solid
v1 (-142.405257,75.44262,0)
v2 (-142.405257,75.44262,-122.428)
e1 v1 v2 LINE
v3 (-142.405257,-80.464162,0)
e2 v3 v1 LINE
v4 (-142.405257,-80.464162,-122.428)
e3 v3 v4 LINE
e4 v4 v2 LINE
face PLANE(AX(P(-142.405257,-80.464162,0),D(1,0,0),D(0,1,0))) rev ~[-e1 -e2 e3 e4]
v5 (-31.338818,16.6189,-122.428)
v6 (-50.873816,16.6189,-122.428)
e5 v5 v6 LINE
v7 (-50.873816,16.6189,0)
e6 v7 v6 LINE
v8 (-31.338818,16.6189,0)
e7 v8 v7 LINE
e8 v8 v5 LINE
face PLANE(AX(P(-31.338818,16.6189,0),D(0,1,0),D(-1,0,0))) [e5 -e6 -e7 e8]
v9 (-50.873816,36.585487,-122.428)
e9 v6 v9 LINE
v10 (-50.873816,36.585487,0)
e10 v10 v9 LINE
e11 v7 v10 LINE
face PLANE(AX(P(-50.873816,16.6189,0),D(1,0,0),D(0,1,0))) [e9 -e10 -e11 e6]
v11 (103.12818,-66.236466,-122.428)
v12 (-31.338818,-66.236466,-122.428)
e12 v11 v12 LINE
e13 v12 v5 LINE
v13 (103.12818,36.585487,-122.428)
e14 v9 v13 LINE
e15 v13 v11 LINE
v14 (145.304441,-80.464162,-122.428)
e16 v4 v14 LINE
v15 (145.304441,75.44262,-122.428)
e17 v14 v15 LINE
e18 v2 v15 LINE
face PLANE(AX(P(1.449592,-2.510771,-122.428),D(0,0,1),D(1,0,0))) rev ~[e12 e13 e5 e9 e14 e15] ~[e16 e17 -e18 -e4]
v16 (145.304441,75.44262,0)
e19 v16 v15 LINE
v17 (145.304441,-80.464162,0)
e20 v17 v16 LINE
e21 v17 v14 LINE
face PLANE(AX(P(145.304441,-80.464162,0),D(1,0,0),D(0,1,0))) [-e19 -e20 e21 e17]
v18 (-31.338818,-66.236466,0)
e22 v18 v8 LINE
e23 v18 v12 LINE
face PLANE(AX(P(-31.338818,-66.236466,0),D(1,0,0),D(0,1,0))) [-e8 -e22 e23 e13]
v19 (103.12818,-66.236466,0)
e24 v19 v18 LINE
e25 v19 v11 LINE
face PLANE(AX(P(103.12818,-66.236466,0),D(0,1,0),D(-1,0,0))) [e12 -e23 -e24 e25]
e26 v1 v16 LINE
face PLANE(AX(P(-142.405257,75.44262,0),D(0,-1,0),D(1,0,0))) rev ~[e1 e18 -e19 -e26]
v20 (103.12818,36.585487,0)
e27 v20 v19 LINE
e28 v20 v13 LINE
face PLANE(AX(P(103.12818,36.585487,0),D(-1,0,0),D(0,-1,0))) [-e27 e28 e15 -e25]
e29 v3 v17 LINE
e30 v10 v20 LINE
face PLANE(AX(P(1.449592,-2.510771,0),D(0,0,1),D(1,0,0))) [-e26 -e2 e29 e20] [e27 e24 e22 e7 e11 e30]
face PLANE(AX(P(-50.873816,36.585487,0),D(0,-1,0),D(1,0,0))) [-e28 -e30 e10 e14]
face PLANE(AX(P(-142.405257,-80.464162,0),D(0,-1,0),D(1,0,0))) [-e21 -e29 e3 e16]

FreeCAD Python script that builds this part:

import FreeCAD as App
import Part
import Sketcher
from FreeCAD import Vector
Q = App.Units.Quantity


def add_polygon(sketch, points):
    """Adds a closed chain of lines whose ends are joined by coincident constraints."""
    first, n = sketch.GeometryCount, len(points)
    for a, b in zip(points, points[1:] + points[:1]):
        sketch.addGeometry(Part.LineSegment(App.Vector(*a, 0), App.Vector(*b, 0)), False)
    for i in range(n):
        sketch.addConstraint(Sketcher.Constraint("Coincident", first + i, 2, first + (i + 1) % n, 1))

doc = App.newDocument("Part")
body = doc.addObject("PartDesign::Body", "Body")

# Sketch on XY plane
sketch1 = body.newObject("Sketcher::SketchObject", "Sketch")
sketch1.AttachmentSupport = (doc.getObject("XY_Plane"), [""])
sketch1.MapMode = "FlatFace"
add_polygon(sketch1, [(-142, 75), (-142, -80), (145, -80), (145, 75)])  # lines 0-3
add_polygon(sketch1, [(-31, -66), (-31, 17), (-51, 17), (-51, 37), (103, 37), (103, -66)])  # lines 4-9
sketch1.addConstraint(Sketcher.Constraint("Vertical", 0))
sketch1.addConstraint(Sketcher.Constraint("Horizontal", 1))
sketch1.addConstraint(Sketcher.Constraint("Vertical", 2))
sketch1.addConstraint(Sketcher.Constraint("Horizontal", 3))
sketch1.addConstraint(Sketcher.Constraint("Vertical", 4))
sketch1.addConstraint(Sketcher.Constraint("Horizontal", 5))
sketch1.addConstraint(Sketcher.Constraint("Vertical", 6))
sketch1.addConstraint(Sketcher.Constraint("Horizontal", 7))
sketch1.addConstraint(Sketcher.Constraint("Vertical", 8))
sketch1.addConstraint(Sketcher.Constraint("Horizontal", 9))
sketch1.addConstraint(Sketcher.Constraint("DistanceX", 1, 1, 1, 2, Q("287.709698 mm")))
sketch1.addConstraint(Sketcher.Constraint("DistanceX", 3, 2, 5, 2, Q("3.6036 in")))
sketch1.addConstraint(Sketcher.Constraint("DistanceY", -1, 1, 4, 2, Q("16.6189 mm")))
sketch1.addConstraint(Sketcher.Constraint("DistanceX", 5, 2, 5, 1, Q("19.534998 mm")))
sketch1.addConstraint(Sketcher.Constraint("DistanceX", 7, 1, 7, 2, Q("154.001996 mm")))
sketch1.addConstraint(Sketcher.Constraint("DistanceY", 0, 2, 0, 1, Q("155.906782 mm")))
sketch1.addConstraint(Sketcher.Constraint("DistanceY", 4, 1, 4, 2, Q("82.855366 mm")))
sketch1.addConstraint(Sketcher.Constraint("DistanceY", 6, 1, 6, 2, Q("19.966587 mm")))
sketch1.addConstraint(Sketcher.Constraint("DistanceY", 0, 2, -1, 1, Q("80.464162 mm")))
sketch1.addConstraint(Sketcher.Constraint("DistanceX", -1, 1, 1, 2, Q("145.304441 mm")))
pad1 = body.newObject("PartDesign::Pad", "Pad")
pad1.Profile = sketch1
pad1.Length = Q("4.82 in")
pad1.Reversed = True

doc.recompute()
